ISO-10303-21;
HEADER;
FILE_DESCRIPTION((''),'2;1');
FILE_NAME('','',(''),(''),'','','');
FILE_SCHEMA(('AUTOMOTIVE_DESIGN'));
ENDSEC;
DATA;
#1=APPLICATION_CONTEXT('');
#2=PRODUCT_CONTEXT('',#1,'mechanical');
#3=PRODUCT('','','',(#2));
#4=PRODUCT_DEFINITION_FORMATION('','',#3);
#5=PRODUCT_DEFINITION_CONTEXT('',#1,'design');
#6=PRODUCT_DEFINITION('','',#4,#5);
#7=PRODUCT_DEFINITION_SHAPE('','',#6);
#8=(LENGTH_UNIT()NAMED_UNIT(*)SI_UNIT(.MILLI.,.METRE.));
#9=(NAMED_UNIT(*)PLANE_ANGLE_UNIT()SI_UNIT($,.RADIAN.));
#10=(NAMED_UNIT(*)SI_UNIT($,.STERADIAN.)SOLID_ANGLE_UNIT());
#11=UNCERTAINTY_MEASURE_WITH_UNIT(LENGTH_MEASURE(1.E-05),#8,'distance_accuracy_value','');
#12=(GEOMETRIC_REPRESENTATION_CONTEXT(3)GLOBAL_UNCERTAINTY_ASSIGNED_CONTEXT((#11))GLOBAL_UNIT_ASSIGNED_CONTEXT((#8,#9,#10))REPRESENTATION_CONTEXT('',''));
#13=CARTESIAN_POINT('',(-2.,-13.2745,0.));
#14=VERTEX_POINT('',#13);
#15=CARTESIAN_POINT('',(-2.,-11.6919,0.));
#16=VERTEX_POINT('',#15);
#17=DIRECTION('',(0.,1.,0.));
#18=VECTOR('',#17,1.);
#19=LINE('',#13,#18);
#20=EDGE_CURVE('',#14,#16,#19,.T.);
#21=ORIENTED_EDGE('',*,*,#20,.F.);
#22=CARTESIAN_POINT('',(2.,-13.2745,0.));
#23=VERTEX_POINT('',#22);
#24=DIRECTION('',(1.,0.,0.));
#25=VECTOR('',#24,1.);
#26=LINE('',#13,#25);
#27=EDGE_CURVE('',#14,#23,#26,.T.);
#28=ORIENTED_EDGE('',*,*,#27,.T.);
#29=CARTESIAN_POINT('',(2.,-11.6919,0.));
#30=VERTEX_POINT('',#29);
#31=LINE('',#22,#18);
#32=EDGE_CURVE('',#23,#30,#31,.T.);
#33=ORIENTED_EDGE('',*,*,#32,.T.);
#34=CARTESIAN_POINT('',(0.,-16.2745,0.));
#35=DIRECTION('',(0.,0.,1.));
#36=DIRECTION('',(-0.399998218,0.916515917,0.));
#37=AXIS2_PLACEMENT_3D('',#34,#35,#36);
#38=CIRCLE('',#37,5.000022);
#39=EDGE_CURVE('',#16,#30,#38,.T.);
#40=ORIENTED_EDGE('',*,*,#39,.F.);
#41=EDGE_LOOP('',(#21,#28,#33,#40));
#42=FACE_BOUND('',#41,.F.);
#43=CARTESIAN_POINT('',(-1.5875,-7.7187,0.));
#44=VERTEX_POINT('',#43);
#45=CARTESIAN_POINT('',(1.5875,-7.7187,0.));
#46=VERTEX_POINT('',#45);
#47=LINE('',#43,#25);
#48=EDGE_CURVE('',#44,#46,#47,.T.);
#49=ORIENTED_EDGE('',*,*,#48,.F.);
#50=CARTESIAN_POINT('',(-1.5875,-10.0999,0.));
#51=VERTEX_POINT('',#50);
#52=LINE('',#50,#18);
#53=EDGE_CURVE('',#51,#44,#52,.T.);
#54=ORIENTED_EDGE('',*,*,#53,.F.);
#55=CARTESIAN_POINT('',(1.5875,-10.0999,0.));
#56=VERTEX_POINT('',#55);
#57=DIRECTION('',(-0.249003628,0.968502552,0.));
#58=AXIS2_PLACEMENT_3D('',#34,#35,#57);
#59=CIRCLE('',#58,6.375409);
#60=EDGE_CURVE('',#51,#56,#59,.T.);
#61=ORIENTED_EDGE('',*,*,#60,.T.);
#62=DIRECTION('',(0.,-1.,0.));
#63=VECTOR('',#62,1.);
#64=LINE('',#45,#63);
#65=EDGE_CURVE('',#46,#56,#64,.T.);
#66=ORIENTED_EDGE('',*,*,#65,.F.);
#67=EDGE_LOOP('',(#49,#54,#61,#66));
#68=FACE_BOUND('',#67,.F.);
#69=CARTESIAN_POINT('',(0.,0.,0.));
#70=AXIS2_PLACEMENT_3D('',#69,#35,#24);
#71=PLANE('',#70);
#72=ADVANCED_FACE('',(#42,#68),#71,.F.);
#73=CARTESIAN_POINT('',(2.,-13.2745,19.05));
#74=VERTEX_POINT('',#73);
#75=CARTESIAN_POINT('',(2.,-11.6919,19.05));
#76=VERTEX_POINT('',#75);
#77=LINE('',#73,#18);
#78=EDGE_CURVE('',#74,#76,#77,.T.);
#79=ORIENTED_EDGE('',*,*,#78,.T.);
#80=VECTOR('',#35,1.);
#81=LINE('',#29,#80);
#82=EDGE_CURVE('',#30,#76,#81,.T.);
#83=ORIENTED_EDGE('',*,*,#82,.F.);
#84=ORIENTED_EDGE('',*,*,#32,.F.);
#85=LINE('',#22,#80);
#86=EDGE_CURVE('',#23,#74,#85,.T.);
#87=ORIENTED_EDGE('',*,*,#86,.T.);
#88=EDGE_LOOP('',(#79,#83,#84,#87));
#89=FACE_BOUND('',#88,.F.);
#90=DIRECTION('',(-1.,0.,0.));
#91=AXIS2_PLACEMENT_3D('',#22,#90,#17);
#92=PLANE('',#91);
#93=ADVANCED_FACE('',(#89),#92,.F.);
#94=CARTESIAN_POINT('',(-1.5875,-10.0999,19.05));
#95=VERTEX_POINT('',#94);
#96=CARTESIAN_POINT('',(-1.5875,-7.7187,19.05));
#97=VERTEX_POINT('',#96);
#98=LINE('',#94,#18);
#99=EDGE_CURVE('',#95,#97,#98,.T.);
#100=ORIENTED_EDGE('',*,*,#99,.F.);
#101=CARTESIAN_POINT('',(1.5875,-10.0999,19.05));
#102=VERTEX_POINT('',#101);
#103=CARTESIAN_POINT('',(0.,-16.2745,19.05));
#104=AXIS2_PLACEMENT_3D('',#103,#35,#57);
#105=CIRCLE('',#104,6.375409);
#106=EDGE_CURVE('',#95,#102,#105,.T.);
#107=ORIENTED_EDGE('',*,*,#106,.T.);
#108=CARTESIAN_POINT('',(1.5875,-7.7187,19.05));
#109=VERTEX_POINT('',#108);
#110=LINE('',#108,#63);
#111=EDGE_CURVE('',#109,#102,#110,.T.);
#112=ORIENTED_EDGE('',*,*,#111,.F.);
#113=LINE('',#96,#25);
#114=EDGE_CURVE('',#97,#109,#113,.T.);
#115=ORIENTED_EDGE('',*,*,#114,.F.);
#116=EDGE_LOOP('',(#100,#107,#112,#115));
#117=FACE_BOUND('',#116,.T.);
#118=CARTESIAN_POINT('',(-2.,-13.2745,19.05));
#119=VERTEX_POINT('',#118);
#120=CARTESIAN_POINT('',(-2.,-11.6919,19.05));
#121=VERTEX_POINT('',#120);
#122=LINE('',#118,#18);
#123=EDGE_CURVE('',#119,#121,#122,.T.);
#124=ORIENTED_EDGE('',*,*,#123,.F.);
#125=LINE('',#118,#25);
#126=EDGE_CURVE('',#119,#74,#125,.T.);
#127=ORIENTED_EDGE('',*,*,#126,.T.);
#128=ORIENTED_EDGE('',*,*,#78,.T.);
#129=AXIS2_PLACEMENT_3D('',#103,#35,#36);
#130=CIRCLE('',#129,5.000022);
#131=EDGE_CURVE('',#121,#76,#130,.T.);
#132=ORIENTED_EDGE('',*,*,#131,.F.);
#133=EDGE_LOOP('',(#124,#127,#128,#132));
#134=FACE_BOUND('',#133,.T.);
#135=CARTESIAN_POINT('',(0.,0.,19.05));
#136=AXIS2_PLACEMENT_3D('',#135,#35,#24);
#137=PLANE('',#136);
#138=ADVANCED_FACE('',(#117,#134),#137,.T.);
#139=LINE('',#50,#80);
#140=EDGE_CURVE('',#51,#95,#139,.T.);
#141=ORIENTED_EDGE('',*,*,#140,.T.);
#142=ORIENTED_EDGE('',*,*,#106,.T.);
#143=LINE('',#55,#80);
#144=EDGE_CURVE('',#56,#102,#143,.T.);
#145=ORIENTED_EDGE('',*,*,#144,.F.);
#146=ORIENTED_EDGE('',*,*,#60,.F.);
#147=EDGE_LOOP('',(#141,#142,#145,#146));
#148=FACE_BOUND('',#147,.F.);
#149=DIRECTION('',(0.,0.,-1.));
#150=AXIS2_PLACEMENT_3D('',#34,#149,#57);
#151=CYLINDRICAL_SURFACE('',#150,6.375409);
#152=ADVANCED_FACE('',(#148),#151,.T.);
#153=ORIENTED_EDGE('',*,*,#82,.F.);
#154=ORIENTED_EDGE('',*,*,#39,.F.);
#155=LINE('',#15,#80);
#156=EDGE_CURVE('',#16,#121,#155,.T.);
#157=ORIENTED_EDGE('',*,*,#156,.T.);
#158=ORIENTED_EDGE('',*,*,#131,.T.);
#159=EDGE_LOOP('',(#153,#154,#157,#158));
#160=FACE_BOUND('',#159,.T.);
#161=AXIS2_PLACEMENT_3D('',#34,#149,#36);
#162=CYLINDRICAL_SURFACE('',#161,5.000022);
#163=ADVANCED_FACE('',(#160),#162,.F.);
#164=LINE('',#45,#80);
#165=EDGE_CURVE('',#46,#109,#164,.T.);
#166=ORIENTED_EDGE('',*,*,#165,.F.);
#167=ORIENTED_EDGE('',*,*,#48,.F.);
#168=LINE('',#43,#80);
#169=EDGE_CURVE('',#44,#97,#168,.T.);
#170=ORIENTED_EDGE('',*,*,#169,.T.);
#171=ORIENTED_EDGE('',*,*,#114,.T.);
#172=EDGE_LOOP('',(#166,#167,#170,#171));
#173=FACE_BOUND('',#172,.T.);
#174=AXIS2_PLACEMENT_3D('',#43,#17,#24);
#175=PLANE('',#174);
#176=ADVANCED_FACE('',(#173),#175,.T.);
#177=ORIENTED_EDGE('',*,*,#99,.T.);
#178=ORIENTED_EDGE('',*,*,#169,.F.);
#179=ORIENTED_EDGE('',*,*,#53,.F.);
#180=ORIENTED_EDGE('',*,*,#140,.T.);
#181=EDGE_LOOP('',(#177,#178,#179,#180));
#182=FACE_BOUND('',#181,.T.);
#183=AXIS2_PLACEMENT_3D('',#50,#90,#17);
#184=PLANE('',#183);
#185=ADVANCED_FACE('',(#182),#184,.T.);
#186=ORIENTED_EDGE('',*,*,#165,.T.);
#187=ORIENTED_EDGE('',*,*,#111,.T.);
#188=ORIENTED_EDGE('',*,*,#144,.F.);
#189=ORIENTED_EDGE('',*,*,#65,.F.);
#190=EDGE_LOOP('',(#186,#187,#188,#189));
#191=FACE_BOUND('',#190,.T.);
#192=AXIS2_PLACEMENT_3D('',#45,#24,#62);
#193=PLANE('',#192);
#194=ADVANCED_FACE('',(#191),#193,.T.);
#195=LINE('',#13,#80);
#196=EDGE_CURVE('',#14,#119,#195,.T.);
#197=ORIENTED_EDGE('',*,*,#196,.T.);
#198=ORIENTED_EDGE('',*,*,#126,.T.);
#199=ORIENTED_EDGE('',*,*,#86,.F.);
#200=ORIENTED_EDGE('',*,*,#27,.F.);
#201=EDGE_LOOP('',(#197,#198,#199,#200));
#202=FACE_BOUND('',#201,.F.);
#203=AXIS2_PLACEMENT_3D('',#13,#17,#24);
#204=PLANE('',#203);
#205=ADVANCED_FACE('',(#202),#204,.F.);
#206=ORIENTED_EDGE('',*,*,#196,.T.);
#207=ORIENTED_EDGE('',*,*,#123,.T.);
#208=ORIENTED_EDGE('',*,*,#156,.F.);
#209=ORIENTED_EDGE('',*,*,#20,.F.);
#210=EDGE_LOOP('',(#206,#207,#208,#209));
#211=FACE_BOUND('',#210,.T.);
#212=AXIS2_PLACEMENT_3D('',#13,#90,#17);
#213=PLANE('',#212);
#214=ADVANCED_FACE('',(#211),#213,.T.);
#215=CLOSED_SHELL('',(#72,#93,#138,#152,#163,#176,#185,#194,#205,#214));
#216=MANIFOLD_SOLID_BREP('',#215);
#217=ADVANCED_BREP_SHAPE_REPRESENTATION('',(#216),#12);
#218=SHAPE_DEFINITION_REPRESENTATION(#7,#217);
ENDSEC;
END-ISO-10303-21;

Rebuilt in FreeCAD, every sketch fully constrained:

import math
import FreeCAD as App
import Part
import Sketcher

V = App.Vector
Q = App.Units.Quantity

doc = App.newDocument("Part")
body = doc.addObject("PartDesign::Body", "Body")

sketch1 = doc.addObject("Sketcher::SketchObject", "Sketch")
body.addObject(sketch1)
sketch1.AttachmentSupport = (doc.XY_Plane, [""])
sketch1.MapMode = "FlatFace"
sketch1.addGeometry([
    Part.LineSegment(V(-1.5875, -7.7187, 0), V(-1.5875, -10.0999, 0)),
    Part.ArcOfCircle(Part.Circle(V(0, -16.2745, 0), V(0, 0, 1), 6.375409), math.radians(104.41856), math.radians(435.58144)),
    Part.LineSegment(V(1.5875, -10.0999, 0), V(1.5875, -7.7187, 0)),
    Part.LineSegment(V(1.5875, -7.7187, 0), V(-1.5875, -7.7187, 0)),
    Part.LineSegment(V(-2, -11.6919, 0), V(-2, -13.2745, 0)),
    Part.LineSegment(V(-2, -13.2745, 0), V(2, -13.2745, 0)),
    Part.LineSegment(V(2, -13.2745, 0), V(2, -11.6919, 0)),
    Part.ArcOfCircle(Part.Circle(V(0, -16.2745, 0), V(0, 0, 1), 5.000022), math.radians(113.578067), math.radians(426.421933)),
], False)
sketch1.addConstraint([
    Sketcher.Constraint("Coincident", 0, 2, 1, 1),
    Sketcher.Constraint("Coincident", 1, 2, 2, 1),
    Sketcher.Constraint("Coincident", 2, 2, 3, 1),
    Sketcher.Constraint("Coincident", 3, 2, 0, 1),
    Sketcher.Constraint("Coincident", 4, 2, 5, 1),
    Sketcher.Constraint("Coincident", 5, 2, 6, 1),
    Sketcher.Constraint("Coincident", 6, 2, 7, 2),
    Sketcher.Constraint("Coincident", 7, 1, 4, 1),
    Sketcher.Constraint("Vertical", 0),
    Sketcher.Constraint("Vertical", 2),
    Sketcher.Constraint("Horizontal", 3),
    Sketcher.Constraint("Vertical", 4),
    Sketcher.Constraint("Horizontal", 5),
    Sketcher.Constraint("Vertical", 6),
    Sketcher.Constraint("Coincident", 7, 3, 1, 3),
    Sketcher.Constraint("Symmetric", 0, 2, 1, 2, -2),
    Sketcher.Constraint("Horizontal", 6, 2, 7, 1),
    Sketcher.Constraint("Radius", 1, Q("0.251 in")),
    Sketcher.Constraint("DistanceX", 3, 2, 3, 1, Q("0.125 in")),
    Sketcher.Constraint("DistanceY", 0, 2, 0, 1, Q("0.093748 in")),
    Sketcher.Constraint("Radius", 7, Q("5 mm")),
    Sketcher.Constraint("DistanceY", 4, 2, 4, 1, Q("0.0623 in")),
    Sketcher.Constraint("DistanceX", 5, 1, 5, 2, Q("4 mm")),
    Sketcher.Constraint("DistanceY", 6, 2, -1, 1, Q("0.4603 in")),
])
pad1 = doc.addObject("PartDesign::Pad", "Pad")
body.addObject(pad1)
pad1.Profile = sketch1
pad1.Length = Q("0.75 in")

doc.recompute()
